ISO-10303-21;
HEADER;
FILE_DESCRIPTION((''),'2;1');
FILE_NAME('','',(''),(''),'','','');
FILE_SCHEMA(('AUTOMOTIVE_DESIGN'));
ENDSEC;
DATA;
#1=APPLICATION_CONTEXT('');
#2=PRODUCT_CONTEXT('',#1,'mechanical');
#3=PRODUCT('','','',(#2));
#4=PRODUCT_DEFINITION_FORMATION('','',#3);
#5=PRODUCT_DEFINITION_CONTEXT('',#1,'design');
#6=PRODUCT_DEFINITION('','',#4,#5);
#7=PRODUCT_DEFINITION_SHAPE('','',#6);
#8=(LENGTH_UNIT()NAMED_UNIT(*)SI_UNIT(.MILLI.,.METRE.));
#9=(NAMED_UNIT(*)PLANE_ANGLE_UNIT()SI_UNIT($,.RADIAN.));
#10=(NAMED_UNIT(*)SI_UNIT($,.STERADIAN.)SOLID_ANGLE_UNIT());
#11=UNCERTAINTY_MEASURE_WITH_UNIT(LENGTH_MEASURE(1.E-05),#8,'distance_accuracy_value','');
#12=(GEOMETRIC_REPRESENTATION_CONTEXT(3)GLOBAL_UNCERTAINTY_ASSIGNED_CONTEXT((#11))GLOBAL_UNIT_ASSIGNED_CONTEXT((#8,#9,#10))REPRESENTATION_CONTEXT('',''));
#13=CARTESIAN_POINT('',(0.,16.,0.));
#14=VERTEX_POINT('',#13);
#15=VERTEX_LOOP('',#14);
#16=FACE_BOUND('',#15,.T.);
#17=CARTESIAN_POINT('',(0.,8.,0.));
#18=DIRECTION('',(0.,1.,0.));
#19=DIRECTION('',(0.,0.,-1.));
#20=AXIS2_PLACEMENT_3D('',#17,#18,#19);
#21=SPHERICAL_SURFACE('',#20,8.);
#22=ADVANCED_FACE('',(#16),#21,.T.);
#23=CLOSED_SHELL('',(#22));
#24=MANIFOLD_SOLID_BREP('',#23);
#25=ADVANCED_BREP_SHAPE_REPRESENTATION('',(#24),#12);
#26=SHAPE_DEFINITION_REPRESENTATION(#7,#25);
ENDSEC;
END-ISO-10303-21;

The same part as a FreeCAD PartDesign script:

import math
import FreeCAD as App
import Part
import Sketcher
from FreeCAD import Vector
Q = App.Units.Quantity

doc = App.newDocument("Part")
body = doc.addObject("PartDesign::Body", "Body")

# Sketch on YZ plane
sketch1 = doc.addObject("Sketcher::SketchObject", "Sketch")
body.addObject(sketch1)
sketch1.AttachmentSupport = (doc.YZ_Plane, [""])
sketch1.MapMode = "FlatFace"
sketch1.addGeometry(Part.LineSegment(Vector(16, 0, 0), Vector(0, 0, 0)), False)
sketch1.addGeometry(Part.ArcOfCircle(Part.Circle(Vector(8, 0, 0), Vector(0, 0, 1), 8), math.radians(180), math.radians(360)), False)
sketch1.addConstraint(Sketcher.Constraint("Coincident", 0, 1, 1, 2))
sketch1.addConstraint(Sketcher.Constraint("Coincident", 1, 1, 0, 2))
sketch1.addConstraint(Sketcher.Constraint("Horizontal", 0))
sketch1.addConstraint(Sketcher.Constraint("Coincident", 1, 1, -1, 1))
sketch1.addConstraint(Sketcher.Constraint("PointOnObject", 1, 3, -1))
sketch1.addConstraint(Sketcher.Constraint("Radius", 1, Q("8 mm")))
revolution = doc.addObject("PartDesign::Revolution", "Revolution")
body.addObject(revolution)
revolution.Profile = sketch1
revolution.ReferenceAxis = (sketch1, ["H_Axis"])
revolution.Angle = 360

doc.recompute()
